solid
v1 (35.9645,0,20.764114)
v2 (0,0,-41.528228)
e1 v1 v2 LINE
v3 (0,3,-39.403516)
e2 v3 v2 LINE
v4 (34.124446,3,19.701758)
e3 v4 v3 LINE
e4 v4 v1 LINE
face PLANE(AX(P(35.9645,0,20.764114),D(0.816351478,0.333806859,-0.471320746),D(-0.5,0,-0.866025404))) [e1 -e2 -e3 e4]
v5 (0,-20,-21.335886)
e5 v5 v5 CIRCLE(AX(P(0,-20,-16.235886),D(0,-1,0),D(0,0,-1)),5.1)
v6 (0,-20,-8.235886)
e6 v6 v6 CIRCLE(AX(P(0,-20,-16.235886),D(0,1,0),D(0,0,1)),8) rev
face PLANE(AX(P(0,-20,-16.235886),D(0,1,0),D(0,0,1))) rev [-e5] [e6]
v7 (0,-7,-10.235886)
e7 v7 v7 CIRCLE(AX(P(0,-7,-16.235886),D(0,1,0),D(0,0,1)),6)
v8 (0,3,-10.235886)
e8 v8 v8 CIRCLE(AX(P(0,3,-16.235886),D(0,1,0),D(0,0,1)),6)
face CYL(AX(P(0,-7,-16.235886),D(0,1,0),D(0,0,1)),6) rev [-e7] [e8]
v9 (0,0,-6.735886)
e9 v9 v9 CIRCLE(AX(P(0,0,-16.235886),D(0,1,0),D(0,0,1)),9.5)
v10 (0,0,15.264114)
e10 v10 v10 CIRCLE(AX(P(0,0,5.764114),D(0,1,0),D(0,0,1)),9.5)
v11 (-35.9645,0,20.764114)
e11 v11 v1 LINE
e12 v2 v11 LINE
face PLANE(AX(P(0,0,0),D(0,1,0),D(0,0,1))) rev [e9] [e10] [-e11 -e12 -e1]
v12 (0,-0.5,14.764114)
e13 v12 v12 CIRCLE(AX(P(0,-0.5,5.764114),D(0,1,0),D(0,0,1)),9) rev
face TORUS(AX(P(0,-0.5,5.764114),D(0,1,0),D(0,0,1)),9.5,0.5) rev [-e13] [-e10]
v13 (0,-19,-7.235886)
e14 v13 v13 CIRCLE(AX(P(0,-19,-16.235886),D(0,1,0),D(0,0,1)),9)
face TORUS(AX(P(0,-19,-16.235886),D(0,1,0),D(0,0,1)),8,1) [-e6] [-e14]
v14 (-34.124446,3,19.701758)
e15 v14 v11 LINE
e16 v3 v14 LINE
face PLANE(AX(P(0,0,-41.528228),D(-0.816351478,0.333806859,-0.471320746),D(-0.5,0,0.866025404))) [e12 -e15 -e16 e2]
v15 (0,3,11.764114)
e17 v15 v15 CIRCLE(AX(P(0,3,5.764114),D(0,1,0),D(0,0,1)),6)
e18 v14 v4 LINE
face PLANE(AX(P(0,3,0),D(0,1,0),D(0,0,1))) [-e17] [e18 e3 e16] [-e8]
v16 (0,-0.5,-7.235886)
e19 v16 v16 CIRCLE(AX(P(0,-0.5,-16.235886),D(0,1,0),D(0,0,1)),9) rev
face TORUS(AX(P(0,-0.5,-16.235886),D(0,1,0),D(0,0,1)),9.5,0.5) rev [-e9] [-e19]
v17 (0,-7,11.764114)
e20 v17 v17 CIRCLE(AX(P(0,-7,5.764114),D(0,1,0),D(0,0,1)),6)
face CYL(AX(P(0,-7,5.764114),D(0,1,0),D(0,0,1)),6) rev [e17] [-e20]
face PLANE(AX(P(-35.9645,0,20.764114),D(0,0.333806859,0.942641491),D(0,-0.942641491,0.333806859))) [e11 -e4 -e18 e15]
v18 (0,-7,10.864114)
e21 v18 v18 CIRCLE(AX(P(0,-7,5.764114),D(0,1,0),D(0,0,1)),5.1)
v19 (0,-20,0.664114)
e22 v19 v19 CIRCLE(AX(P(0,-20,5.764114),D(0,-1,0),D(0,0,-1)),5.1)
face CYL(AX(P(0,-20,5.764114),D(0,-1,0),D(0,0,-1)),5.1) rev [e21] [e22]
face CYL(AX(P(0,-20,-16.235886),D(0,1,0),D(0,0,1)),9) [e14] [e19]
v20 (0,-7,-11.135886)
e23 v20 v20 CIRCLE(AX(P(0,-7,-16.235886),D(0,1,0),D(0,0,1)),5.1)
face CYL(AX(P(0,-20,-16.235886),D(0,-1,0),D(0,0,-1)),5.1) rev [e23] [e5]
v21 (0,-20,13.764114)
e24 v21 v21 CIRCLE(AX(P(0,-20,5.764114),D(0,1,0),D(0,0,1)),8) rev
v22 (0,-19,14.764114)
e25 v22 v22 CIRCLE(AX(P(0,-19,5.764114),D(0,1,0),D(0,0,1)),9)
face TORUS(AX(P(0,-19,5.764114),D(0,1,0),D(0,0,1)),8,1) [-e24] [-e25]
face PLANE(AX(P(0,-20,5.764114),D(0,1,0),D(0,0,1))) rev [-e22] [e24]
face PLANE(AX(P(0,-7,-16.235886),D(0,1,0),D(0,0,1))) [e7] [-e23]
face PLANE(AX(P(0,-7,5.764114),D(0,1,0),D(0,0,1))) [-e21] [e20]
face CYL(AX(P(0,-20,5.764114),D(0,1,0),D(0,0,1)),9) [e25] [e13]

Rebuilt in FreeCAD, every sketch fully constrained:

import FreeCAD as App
import Part
import Sketcher
Q = App.Units.Quantity


def edges_at(feature, points):
    """Names of the edges that pass closest to the given points."""
    edges = feature.Shape.Edges
    near = lambda p: min(range(len(edges)), key=lambda i: edges[i].distToShape(Part.Vertex(*p))[0])
    return sorted({f"Edge{near(p) + 1}" for p in points})

doc = App.newDocument("Part")
body = doc.addObject("PartDesign::Body", "Body")

# Sketch on XZ plane
sketch1 = body.newObject("Sketcher::SketchObject", "Sketch")
sketch1.AttachmentSupport = (doc.getObject("XZ_Plane"), [""])
sketch1.MapMode = "FlatFace"
sketch1.addGeometry(Part.LineSegment(App.Vector(0, -42, 0), App.Vector(-36, 21, 0)), False)
sketch1.addGeometry(Part.LineSegment(App.Vector(-36, 21, 0), App.Vector(36, 21, 0)), False)
sketch1.addGeometry(Part.LineSegment(App.Vector(36, 21, 0), App.Vector(0, -42, 0)), False)
sketch1.addConstraint(Sketcher.Constraint("Coincident", 0, 2, 1, 1))
sketch1.addConstraint(Sketcher.Constraint("Coincident", 1, 2, 2, 1))
sketch1.addConstraint(Sketcher.Constraint("Coincident", 2, 2, 0, 1))
sketch1.addConstraint(Sketcher.Constraint("Horizontal", 1))
sketch1.addConstraint(Sketcher.Constraint("PointOnObject", 2, 2, -2))
sketch1.addConstraint(Sketcher.Constraint("Equal", 0, 2))
sketch1.addConstraint(Sketcher.Constraint("Angle", 0, Q("120 deg")))
sketch1.addConstraint(Sketcher.Constraint("DistanceX", 1, 1, 1, 2, 71.929))
sketch1.addConstraint(Sketcher.Constraint("DistanceY", -1, 1, 0, 2, 20.764114))
pad1 = body.newObject("PartDesign::Pad", "Pad")
pad1.Profile = sketch1
pad1.Length = 3
pad1.Reversed = True
pad1.TaperAngle = -19.5

# Sketch on XZ plane
sketch2 = body.newObject("Sketcher::SketchObject", "Sketch001")
sketch2.AttachmentSupport = (doc.getObject("XZ_Plane"), [""])
sketch2.MapMode = "FlatFace"
sketch2.addGeometry(Part.Circle(App.Vector(0, -16, 0), App.Vector(0, 0, 1), 9), False)
sketch2.addConstraint(Sketcher.Constraint("PointOnObject", 0, 3, -2))
sketch2.addConstraint(Sketcher.Constraint("Diameter", 0, 18.0))
sketch2.addConstraint(Sketcher.Constraint("DistanceY", 0, 3, -1, 1, 16.235886))
pad2 = body.newObject("PartDesign::Pad", "Pad001")
pad2.Profile = sketch2
pad2.Length = 20

# Sketch on XZ plane
sketch3 = body.newObject("Sketcher::SketchObject", "Sketch002")
sketch3.AttachmentSupport = (doc.getObject("XZ_Plane"), [""])
sketch3.MapMode = "FlatFace"
sketch3.AttachmentOffset = App.Placement(App.Vector(0, 0, -3), App.Rotation())
sketch3.addGeometry(Part.Circle(App.Vector(0, -16, 0), App.Vector(0, 0, 1), 6), False)
sketch3.addConstraint(Sketcher.Constraint("PointOnObject", 0, 3, -2))
sketch3.addConstraint(Sketcher.Constraint("Diameter", 0, 12.0))
sketch3.addConstraint(Sketcher.Constraint("DistanceY", 0, 3, -1, 1, 16.235886))
pocket1 = body.newObject("PartDesign::Pocket", "Pocket")
pocket1.Profile = sketch3
pocket1.Length = 10
pocket1.Reversed = True

# Sketch on XZ plane
sketch4 = body.newObject("Sketcher::SketchObject", "Sketch003")
sketch4.AttachmentSupport = (doc.getObject("XZ_Plane"), [""])
sketch4.MapMode = "FlatFace"
sketch4.AttachmentOffset = App.Placement(App.Vector(0, 0, 20), App.Rotation())
sketch4.addGeometry(Part.Circle(App.Vector(0, -16, 0), App.Vector(0, 0, 1), 5), False)
sketch4.addConstraint(Sketcher.Constraint("PointOnObject", 0, 3, -2))
sketch4.addConstraint(Sketcher.Constraint("Diameter", 0, 10.2))
sketch4.addConstraint(Sketcher.Constraint("DistanceY", 0, 3, -1, 1, 16.235886))
doc.recompute()
hole = body.newObject("PartDesign::Hole", "Hole")
hole.Profile = sketch4
hole.ThreadType = "None"
hole.Diameter = 10.2
hole.DepthType = "ThroughAll"
doc.recompute()

fillet = body.newObject("PartDesign::Fillet", "Fillet")
fillet.Base = (hole, edges_at(hole, [(0, -20, -25.236)]))
fillet.Radius = 1
doc.recompute()

fillet2 = body.newObject("PartDesign::Fillet", "Fillet001")
fillet2.Base = (fillet, edges_at(fillet, [(0, 0, -25.236)]))
fillet2.Radius = 0.5
doc.recompute()

linearpattern = body.newObject("PartDesign::LinearPattern", "LinearPattern")
linearpattern.Originals = [pad2, pocket1, hole]
linearpattern.Direction = (doc.getObject("Z_Axis"), [""])
linearpattern.Mode = "offset"
linearpattern.Offset = 22
linearpattern.Occurrences = 2
body.Tip = linearpattern
doc.recompute()

fillet3 = body.newObject("PartDesign::Fillet", "Fillet002")
fillet3.Base = (linearpattern, edges_at(linearpattern, [(0, -20, -3.236)]))
fillet3.Radius = 1
doc.recompute()

fillet4 = body.newObject("PartDesign::Fillet", "Fillet003")
fillet4.Base = (fillet3, edges_at(fillet3, [(0, 0, -3.236)]))
fillet4.Radius = 0.5

doc.recompute()
